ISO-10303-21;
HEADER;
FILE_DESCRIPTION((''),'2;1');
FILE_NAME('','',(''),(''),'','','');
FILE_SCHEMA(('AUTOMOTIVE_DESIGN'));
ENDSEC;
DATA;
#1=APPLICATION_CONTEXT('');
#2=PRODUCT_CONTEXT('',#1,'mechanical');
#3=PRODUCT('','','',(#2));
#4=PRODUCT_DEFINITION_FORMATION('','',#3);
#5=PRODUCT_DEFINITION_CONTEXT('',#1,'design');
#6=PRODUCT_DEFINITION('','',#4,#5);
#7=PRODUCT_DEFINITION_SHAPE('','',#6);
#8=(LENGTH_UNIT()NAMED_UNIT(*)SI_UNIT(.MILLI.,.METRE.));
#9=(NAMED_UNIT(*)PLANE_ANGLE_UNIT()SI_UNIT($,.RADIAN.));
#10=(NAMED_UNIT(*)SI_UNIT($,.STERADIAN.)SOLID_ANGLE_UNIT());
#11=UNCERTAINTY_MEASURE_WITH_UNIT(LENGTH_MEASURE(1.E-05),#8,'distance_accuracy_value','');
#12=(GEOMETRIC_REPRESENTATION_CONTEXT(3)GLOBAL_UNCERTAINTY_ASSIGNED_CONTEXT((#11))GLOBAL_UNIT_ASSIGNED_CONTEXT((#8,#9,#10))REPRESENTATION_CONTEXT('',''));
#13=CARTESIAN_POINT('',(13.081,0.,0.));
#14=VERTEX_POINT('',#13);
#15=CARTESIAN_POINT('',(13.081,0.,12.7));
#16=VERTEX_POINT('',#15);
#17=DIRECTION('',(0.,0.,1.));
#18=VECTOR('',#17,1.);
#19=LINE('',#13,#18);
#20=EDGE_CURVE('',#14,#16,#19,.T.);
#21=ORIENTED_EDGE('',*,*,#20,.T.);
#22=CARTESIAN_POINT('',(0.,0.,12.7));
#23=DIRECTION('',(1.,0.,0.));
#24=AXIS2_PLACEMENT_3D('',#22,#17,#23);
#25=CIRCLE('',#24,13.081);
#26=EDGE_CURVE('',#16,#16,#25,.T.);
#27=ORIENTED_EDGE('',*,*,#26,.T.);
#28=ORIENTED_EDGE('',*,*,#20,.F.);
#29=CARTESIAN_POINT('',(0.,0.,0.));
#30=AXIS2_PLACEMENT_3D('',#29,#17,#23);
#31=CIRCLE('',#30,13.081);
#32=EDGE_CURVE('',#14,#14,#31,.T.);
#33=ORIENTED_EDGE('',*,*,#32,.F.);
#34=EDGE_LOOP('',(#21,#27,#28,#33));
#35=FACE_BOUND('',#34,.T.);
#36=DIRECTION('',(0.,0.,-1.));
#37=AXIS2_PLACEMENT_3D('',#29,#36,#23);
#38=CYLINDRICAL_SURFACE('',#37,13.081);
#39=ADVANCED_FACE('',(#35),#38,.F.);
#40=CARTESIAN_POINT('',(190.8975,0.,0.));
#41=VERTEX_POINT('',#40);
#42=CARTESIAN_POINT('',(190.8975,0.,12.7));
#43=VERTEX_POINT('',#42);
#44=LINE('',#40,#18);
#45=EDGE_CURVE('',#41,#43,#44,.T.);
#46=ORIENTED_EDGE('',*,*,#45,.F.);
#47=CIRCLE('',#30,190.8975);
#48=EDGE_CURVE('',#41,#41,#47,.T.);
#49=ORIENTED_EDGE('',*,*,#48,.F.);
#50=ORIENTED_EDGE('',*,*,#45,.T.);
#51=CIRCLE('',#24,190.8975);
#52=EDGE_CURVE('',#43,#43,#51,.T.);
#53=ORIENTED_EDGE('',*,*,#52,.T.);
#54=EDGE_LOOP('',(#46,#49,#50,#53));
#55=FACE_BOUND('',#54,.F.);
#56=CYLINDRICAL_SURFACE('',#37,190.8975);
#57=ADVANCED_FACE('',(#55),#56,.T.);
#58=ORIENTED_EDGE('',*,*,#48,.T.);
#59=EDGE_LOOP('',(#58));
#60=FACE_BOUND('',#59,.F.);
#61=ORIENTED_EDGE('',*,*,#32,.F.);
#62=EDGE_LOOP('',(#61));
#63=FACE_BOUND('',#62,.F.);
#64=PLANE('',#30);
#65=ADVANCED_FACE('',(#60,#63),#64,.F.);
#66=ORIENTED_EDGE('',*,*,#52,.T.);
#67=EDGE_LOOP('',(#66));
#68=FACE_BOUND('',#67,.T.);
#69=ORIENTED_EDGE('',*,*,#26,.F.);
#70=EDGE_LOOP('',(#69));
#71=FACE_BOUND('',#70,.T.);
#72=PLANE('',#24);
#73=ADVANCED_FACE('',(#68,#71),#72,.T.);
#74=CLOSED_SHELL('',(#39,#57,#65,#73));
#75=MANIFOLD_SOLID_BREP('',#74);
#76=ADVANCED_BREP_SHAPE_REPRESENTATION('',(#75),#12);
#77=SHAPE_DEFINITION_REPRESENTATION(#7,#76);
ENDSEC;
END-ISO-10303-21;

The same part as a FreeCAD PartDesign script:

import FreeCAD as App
import Part
import Sketcher
from FreeCAD import Vector
Q = App.Units.Quantity

doc = App.newDocument("Part")
body = doc.addObject("PartDesign::Body", "Body")

# Sketch on XY plane
sketch1 = doc.addObject("Sketcher::SketchObject", "Sketch")
body.addObject(sketch1)
sketch1.AttachmentSupport = (doc.XY_Plane, [""])
sketch1.MapMode = "FlatFace"
sketch1.addGeometry([
    Part.Circle(Vector(0, 0, 0), Vector(0, 0, 1), 191),
    Part.Circle(Vector(0, 0, 0), Vector(0, 0, 1), 13),
], False)
sketch1.addConstraint([
    Sketcher.Constraint("Coincident", 0, 3, -1, 1),
    Sketcher.Constraint("Coincident", 1, 3, -1, 1),
    Sketcher.Constraint("Diameter", 1, Q("1.03 in")),
    Sketcher.Constraint("Diameter", 0, Q("15.0313 in")),
])
pad1 = doc.addObject("PartDesign::Pad", "Pad")
body.addObject(pad1)
pad1.Profile = sketch1
pad1.Length = Q("0.5 in")

doc.recompute()
